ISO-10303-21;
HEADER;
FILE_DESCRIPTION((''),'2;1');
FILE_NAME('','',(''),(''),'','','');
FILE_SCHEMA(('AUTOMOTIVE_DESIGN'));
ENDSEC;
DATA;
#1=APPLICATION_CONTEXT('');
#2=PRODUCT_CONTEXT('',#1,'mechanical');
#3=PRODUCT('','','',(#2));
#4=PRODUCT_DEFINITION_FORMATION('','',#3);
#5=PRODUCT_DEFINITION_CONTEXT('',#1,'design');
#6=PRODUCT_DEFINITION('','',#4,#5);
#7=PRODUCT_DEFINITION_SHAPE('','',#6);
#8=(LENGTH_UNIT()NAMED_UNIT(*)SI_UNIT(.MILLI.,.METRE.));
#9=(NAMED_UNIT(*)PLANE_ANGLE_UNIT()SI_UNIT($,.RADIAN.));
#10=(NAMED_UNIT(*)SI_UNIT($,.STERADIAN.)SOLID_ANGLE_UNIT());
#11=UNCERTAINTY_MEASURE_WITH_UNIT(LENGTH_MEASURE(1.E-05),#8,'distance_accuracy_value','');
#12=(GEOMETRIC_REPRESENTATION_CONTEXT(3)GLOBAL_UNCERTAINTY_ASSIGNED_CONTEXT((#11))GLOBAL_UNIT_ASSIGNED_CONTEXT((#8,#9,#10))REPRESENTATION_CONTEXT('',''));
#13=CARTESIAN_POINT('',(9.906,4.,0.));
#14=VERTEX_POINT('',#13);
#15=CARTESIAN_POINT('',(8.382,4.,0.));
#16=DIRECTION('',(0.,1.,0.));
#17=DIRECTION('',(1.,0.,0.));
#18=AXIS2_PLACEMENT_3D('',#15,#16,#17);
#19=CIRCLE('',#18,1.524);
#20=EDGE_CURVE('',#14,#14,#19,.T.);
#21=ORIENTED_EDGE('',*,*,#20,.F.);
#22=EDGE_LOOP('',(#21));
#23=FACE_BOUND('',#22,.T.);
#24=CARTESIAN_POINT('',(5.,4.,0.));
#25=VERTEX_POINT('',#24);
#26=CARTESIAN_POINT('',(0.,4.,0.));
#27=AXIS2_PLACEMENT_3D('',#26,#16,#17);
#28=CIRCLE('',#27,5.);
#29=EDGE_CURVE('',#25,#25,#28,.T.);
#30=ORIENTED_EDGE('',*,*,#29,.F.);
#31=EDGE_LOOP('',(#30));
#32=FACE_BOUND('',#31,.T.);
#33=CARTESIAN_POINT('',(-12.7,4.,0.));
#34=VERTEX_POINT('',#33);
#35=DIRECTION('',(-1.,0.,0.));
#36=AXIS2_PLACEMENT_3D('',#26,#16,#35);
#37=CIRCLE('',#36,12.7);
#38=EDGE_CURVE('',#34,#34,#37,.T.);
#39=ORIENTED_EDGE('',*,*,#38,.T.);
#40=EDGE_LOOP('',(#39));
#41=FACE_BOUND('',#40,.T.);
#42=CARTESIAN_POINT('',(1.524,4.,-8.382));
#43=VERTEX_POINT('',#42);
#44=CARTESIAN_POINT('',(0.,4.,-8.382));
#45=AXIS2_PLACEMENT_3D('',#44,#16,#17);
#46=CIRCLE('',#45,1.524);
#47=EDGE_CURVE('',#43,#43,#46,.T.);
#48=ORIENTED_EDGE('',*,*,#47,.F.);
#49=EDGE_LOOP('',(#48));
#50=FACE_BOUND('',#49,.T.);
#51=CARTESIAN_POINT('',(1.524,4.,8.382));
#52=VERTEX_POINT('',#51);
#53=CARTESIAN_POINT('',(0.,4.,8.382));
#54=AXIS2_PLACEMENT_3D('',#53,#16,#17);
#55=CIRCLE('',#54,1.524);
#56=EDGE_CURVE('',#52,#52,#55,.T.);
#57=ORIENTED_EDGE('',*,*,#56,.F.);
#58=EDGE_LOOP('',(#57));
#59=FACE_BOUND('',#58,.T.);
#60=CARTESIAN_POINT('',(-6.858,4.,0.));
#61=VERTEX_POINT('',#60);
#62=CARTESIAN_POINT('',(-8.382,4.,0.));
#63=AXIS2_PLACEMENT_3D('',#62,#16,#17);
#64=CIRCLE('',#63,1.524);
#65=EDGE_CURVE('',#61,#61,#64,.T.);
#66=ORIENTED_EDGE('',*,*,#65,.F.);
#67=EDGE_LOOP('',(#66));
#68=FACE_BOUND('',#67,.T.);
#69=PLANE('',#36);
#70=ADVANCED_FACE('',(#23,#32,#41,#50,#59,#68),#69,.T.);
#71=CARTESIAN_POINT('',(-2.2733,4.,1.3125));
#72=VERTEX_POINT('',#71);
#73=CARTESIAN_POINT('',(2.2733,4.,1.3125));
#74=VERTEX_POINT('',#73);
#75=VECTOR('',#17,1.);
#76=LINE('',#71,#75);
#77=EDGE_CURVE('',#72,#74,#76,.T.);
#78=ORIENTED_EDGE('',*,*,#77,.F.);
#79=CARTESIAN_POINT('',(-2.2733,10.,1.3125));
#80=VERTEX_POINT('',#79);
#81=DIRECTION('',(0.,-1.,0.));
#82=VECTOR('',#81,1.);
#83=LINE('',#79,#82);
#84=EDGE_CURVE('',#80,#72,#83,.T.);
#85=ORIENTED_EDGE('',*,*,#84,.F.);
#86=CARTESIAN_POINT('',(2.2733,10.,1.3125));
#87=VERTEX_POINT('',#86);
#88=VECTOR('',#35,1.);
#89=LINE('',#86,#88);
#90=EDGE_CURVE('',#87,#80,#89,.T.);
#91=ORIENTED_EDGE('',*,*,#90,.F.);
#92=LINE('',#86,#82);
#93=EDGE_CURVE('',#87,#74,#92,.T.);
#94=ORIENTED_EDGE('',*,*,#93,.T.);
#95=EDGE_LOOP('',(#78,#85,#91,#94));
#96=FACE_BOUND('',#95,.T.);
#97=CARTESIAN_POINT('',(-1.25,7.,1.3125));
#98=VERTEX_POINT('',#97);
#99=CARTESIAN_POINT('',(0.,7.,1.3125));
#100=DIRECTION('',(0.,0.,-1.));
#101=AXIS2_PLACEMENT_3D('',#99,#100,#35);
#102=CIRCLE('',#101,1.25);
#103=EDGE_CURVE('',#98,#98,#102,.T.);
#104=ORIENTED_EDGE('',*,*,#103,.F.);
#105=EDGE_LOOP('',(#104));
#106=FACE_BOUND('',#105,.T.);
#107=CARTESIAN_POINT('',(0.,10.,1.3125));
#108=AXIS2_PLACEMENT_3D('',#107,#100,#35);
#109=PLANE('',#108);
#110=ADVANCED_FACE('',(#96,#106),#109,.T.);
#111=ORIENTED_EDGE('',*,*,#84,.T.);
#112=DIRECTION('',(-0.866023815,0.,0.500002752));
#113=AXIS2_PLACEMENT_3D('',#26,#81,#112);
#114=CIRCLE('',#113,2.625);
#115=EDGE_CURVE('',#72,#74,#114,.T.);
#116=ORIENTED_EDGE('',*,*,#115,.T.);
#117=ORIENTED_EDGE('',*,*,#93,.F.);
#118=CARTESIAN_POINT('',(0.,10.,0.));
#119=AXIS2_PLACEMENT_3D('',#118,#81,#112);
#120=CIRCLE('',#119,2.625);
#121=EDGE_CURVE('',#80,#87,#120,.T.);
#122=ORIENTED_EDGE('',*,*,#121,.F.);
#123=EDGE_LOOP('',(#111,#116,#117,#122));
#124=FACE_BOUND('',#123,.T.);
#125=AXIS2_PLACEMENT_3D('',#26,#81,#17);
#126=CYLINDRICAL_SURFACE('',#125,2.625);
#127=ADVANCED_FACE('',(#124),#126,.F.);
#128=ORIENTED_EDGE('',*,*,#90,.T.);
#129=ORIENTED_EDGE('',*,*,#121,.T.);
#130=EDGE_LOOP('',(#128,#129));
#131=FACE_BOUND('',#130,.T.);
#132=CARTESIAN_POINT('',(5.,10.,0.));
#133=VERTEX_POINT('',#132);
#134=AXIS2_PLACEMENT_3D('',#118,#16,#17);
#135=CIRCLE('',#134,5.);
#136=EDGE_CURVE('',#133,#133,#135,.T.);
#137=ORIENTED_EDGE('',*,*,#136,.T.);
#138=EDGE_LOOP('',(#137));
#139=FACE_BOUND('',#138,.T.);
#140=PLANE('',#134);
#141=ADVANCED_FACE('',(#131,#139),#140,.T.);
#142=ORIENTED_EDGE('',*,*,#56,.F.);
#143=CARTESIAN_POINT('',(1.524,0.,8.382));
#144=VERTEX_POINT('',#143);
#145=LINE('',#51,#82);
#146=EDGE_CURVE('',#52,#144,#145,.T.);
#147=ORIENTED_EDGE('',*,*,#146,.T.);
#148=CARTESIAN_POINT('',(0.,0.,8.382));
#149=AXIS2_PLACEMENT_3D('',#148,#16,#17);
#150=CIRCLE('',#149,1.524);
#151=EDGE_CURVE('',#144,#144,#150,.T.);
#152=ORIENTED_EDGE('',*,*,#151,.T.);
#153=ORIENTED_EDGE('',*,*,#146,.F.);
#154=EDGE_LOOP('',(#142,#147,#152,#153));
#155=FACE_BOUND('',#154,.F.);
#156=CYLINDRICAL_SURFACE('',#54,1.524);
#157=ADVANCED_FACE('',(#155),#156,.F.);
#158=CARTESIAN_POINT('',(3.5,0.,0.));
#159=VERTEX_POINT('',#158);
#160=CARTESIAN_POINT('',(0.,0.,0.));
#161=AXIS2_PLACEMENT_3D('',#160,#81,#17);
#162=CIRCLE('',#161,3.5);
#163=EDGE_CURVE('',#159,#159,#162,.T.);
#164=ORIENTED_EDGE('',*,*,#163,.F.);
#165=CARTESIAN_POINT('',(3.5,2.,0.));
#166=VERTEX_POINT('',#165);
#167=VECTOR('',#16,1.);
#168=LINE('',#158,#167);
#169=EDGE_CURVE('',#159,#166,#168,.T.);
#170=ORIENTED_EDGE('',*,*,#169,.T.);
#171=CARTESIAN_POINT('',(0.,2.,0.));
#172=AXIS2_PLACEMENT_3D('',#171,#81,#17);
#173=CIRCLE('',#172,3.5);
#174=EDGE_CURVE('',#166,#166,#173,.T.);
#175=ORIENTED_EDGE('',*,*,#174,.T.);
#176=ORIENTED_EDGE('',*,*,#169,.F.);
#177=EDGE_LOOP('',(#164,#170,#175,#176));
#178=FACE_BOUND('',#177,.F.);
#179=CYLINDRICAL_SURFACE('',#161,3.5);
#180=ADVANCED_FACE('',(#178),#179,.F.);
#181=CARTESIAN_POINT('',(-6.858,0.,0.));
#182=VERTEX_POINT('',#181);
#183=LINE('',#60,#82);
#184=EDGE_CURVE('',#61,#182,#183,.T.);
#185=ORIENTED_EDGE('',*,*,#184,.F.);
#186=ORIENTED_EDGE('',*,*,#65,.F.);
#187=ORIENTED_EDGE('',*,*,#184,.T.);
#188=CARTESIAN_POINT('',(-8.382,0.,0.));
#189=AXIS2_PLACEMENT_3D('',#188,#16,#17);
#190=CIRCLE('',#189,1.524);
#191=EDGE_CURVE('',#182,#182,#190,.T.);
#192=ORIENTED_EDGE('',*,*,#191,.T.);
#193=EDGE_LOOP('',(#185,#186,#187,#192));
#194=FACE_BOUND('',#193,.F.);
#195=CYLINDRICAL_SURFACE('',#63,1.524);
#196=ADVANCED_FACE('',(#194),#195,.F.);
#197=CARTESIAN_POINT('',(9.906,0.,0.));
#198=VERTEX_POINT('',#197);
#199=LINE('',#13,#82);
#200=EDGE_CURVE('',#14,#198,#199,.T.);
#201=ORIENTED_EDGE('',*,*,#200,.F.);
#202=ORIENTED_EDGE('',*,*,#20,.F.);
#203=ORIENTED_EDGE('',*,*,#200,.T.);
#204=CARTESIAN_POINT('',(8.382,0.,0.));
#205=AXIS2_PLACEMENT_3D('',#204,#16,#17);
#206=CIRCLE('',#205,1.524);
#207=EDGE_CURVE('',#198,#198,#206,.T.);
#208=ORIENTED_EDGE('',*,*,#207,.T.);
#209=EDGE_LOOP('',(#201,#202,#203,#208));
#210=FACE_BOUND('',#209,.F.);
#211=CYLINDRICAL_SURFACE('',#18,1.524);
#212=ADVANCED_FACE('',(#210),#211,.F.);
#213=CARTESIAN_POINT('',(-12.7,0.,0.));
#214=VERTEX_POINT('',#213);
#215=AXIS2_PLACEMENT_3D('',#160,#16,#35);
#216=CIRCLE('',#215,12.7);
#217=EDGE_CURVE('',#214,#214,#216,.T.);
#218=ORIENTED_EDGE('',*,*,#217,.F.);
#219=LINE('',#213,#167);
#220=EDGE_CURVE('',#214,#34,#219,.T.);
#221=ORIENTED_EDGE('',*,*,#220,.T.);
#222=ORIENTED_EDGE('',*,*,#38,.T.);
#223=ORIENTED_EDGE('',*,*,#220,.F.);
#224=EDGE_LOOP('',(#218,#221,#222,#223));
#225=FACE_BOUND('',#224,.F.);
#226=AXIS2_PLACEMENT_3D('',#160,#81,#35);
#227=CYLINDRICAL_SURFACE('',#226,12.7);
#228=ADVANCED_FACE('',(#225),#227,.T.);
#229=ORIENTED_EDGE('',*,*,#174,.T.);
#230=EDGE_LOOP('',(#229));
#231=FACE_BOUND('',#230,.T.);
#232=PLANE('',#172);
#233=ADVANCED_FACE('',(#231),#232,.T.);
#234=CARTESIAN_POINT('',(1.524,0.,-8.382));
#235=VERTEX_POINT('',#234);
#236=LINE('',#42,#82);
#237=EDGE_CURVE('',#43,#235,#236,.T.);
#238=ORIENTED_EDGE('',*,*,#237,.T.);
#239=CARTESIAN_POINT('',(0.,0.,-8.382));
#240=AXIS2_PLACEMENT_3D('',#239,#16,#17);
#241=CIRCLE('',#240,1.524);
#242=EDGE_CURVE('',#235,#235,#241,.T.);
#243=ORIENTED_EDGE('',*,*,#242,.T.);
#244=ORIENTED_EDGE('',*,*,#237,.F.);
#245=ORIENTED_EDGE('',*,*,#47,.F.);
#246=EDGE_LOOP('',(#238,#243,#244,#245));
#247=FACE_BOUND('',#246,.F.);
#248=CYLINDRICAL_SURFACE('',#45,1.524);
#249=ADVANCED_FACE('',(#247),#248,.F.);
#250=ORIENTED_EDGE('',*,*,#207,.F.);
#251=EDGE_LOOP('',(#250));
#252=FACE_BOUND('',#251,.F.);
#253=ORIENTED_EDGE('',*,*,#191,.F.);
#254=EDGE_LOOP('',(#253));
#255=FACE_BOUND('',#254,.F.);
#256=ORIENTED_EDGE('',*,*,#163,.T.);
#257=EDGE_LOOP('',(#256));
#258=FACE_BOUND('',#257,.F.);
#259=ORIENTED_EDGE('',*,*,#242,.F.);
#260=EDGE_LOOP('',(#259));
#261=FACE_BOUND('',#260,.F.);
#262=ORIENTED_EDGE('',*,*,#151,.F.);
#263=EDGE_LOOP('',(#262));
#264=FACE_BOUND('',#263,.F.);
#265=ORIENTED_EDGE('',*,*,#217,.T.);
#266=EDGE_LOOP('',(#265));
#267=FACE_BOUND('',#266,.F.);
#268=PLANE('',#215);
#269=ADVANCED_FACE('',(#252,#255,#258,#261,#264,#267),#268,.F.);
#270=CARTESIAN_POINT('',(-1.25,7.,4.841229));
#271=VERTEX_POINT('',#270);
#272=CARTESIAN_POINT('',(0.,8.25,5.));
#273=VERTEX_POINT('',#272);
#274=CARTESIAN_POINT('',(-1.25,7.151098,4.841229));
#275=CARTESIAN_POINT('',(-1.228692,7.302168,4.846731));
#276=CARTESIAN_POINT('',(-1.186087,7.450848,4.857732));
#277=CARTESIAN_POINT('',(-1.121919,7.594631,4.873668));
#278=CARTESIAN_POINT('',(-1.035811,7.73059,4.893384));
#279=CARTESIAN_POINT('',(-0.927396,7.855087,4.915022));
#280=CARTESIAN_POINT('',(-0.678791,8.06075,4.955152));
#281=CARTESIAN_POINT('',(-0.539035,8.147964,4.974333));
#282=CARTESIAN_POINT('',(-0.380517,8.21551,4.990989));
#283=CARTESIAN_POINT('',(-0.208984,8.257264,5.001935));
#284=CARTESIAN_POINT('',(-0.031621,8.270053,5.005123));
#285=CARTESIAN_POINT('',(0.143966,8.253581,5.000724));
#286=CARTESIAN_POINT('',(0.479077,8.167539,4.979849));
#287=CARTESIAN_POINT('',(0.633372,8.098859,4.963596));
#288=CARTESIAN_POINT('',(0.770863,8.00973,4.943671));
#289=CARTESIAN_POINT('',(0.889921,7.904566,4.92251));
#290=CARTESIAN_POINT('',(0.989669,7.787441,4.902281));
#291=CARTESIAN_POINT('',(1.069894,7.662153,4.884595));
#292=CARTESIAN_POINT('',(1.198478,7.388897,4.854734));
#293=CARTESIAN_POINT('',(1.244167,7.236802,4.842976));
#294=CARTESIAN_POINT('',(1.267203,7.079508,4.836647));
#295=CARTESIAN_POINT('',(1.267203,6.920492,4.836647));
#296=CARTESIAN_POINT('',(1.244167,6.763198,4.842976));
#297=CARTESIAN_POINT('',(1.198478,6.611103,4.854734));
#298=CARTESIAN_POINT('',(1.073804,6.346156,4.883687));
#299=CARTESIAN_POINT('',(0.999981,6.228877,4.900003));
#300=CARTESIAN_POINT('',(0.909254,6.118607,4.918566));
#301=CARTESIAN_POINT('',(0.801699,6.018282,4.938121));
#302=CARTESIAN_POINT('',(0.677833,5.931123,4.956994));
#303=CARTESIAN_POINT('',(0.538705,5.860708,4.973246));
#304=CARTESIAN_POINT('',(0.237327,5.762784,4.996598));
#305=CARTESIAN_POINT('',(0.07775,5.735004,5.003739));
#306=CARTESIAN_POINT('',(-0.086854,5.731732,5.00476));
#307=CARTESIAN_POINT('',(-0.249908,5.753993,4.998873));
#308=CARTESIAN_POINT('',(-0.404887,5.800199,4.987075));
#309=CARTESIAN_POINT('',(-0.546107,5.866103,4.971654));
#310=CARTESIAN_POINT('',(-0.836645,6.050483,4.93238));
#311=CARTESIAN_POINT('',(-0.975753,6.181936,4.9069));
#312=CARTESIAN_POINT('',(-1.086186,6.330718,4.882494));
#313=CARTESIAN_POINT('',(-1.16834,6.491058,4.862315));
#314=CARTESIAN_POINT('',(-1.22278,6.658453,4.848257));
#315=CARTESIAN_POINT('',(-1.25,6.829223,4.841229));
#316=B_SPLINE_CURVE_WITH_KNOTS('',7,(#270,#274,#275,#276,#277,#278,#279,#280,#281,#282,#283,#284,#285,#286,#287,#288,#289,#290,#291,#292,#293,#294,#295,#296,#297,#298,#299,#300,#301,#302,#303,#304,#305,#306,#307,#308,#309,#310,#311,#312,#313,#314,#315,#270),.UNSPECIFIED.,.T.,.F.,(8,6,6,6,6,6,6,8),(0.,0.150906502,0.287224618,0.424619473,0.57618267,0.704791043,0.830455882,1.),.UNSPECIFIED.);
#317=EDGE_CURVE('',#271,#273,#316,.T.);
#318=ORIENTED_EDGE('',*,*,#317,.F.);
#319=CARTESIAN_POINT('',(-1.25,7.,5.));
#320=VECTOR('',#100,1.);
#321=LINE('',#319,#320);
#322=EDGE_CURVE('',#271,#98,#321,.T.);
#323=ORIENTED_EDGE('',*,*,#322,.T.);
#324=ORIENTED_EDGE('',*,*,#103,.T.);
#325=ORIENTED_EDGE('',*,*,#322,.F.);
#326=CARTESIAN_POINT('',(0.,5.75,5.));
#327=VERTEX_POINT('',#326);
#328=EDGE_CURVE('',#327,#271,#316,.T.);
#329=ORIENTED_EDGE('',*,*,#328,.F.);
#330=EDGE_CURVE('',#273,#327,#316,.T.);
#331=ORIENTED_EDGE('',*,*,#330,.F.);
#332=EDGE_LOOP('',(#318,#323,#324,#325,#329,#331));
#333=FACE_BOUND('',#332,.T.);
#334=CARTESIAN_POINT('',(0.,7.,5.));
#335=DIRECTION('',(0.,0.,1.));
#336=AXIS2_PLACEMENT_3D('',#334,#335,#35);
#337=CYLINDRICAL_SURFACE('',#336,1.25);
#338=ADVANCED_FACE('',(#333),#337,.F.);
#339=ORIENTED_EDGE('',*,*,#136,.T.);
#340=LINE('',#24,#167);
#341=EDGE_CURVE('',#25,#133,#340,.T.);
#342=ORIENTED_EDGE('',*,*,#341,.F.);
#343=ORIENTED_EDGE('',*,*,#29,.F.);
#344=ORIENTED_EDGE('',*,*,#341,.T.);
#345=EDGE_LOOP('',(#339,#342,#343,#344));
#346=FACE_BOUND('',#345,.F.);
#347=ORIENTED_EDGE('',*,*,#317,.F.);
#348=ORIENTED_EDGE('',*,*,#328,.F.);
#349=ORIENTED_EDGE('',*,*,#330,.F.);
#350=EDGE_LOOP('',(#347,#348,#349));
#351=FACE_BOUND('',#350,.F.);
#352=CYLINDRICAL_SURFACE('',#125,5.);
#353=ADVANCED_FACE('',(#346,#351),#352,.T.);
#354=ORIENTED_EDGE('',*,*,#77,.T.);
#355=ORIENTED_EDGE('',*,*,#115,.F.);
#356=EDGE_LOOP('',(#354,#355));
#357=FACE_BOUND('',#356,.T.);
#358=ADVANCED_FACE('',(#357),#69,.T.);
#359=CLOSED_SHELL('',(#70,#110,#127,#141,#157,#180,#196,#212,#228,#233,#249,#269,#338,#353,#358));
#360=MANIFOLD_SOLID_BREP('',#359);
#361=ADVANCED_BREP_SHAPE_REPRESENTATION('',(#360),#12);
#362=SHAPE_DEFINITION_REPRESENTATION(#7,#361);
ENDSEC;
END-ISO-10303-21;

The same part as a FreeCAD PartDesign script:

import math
import FreeCAD as App
import Part
import Sketcher
from FreeCAD import Vector
Q = App.Units.Quantity

doc = App.newDocument("Part")
body = doc.addObject("PartDesign::Body", "Body")

# Sketch on XZ plane
sketch1 = body.newObject("Sketcher::SketchObject", "Sketch")
sketch1.AttachmentSupport = (doc.getObject("XZ_Plane"), [""])
sketch1.MapMode = "FlatFace"
sketch1.addGeometry(Part.Circle(Vector(0, 0, 0), Vector(0, 0, 1), 13), False)
sketch1.addConstraint([
    Sketcher.Constraint("Coincident", 0, 3, -1, 1),
    Sketcher.Constraint("Diameter", 0, Q("25.4 mm")),
])
pad1 = body.newObject("PartDesign::Pad", "Pad")
pad1.Profile = sketch1
pad1.Length = 4
pad1.Reversed = True

# Sketch on XZ plane
sketch2 = body.newObject("Sketcher::SketchObject", "Sketch001")
sketch2.AttachmentSupport = (doc.getObject("XZ_Plane"), [""])
sketch2.MapMode = "FlatFace"
sketch2.AttachmentOffset = App.Placement(Vector(0, 0, -4), App.Rotation())
sketch2.addGeometry([
    Part.Circle(Vector(0, -8.4, 0), Vector(0, 0, 1), 1.5),
    Part.Circle(Vector(-8.4, 0, 0), Vector(0, 0, 1), 1.5),
    Part.Circle(Vector(0, 8.4, 0), Vector(0, 0, 1), 1.5),
    Part.Circle(Vector(8.4, 0, 0), Vector(0, 0, 1), 1.5),
], False)
sketch2.addConstraint([
    Sketcher.Constraint("Equal", 0, 1),
    Sketcher.Constraint("Equal", 1, 2),
    Sketcher.Constraint("Equal", 2, 3),
    Sketcher.Constraint("Symmetric", 0, 3, 2, 3, -1, 1),
    Sketcher.Constraint("Symmetric", 1, 3, 3, 3, -1, 1),
    Sketcher.Constraint("PointOnObject", 0, 3, -2),
    Sketcher.Constraint("PointOnObject", 1, 3, -1),
    Sketcher.Constraint("Diameter", 0, Q("3.048 mm")),
    Sketcher.Constraint("DistanceY", 0, 3, -1, 1, Q("8.382 mm")),
    Sketcher.Constraint("DistanceX", 1, 3, -1, 1, Q("8.382 mm")),
])
pocket1 = body.newObject("PartDesign::Pocket", "Pocket")
pocket1.Profile = sketch2
pocket1.Length = 8
pocket1.Midplane = True

# Sketch on XZ plane
sketch3 = body.newObject("Sketcher::SketchObject", "Sketch002")
sketch3.AttachmentSupport = (doc.getObject("XZ_Plane"), [""])
sketch3.MapMode = "FlatFace"
sketch3.addGeometry(Part.Circle(Vector(0, 0, 0), Vector(0, 0, 1), 3.5), False)
sketch3.addConstraint([
    Sketcher.Constraint("Coincident", 0, 3, -1, 1),
    Sketcher.Constraint("Diameter", 0, Q("7 mm")),
])
pocket2 = body.newObject("PartDesign::Pocket", "Pocket001")
pocket2.Profile = sketch3
pocket2.Length = 2

# Sketch on XZ plane
sketch4 = body.newObject("Sketcher::SketchObject", "Sketch003")
sketch4.AttachmentSupport = (doc.getObject("XZ_Plane"), [""])
sketch4.MapMode = "FlatFace"
sketch4.AttachmentOffset = App.Placement(Vector(0, 0, -4), App.Rotation())
sketch4.addGeometry([
    Part.Circle(Vector(0, 0, 0), Vector(0, 0, 1), 5),
    Part.Circle(Vector(0, 0, 0), Vector(0, 0, 1), 2.6),
], False)
sketch4.addConstraint([
    Sketcher.Constraint("Coincident", 0, 3, -1, 1),
    Sketcher.Constraint("Coincident", 1, 3, -1, 1),
    Sketcher.Constraint("Diameter", 0, Q("10 mm")),
    Sketcher.Constraint("Diameter", 1, Q("5.25 mm")),
])
pad2 = body.newObject("PartDesign::Pad", "Pad001")
pad2.Profile = sketch4
pad2.Length = 6
pad2.Reversed = True

# Sketch on XZ plane
sketch5 = body.newObject("Sketcher::SketchObject", "Sketch004")
sketch5.AttachmentSupport = (doc.getObject("XZ_Plane"), [""])
sketch5.MapMode = "FlatFace"
sketch5.AttachmentOffset = App.Placement(Vector(0, 0, -10), App.Rotation())
sketch5.addGeometry([
    Part.LineSegment(Vector(2.3, 1.3, 0), Vector(-2.3, 1.3, 0)),
    Part.ArcOfCircle(Part.Circle(Vector(0, 0, 0), Vector(0, 0, 1), 2.6), math.radians(30), math.radians(150)),
], False)
sketch5.addConstraint([
    Sketcher.Constraint("Coincident", 0, 1, 1, 1),
    Sketcher.Constraint("Coincident", 1, 2, 0, 2),
    Sketcher.Constraint("Horizontal", 0),
    Sketcher.Constraint("Coincident", 1, 3, -1, 1),
    Sketcher.Constraint("Radius", 1, Q("2.625 mm")),
    Sketcher.Constraint("DistanceY", -1, 1, 0, 1, Q("1.3125 mm")),
])
pad3 = body.newObject("PartDesign::Pad", "Pad002")
pad3.Profile = sketch5
pad3.Length = 6

# Sketch on XY plane
sketch6 = body.newObject("Sketcher::SketchObject", "Sketch005")
sketch6.AttachmentSupport = (doc.getObject("XY_Plane"), [""])
sketch6.MapMode = "FlatFace"
sketch6.AttachmentOffset = App.Placement(Vector(0, 0, 5), App.Rotation())
sketch6.addGeometry(Part.Circle(Vector(0, 7, 0), Vector(0, 0, 1), 1.2), False)
sketch6.addConstraint([
    Sketcher.Constraint("PointOnObject", 0, 3, -2),
    Sketcher.Constraint("Diameter", 0, Q("2.5 mm")),
    Sketcher.Constraint("DistanceY", -1, 1, 0, 3, Q("7 mm")),
])
pocket3 = body.newObject("PartDesign::Pocket", "Pocket002")
pocket3.Profile = sketch6
pocket3.Length = 3.6875

doc.recompute()
